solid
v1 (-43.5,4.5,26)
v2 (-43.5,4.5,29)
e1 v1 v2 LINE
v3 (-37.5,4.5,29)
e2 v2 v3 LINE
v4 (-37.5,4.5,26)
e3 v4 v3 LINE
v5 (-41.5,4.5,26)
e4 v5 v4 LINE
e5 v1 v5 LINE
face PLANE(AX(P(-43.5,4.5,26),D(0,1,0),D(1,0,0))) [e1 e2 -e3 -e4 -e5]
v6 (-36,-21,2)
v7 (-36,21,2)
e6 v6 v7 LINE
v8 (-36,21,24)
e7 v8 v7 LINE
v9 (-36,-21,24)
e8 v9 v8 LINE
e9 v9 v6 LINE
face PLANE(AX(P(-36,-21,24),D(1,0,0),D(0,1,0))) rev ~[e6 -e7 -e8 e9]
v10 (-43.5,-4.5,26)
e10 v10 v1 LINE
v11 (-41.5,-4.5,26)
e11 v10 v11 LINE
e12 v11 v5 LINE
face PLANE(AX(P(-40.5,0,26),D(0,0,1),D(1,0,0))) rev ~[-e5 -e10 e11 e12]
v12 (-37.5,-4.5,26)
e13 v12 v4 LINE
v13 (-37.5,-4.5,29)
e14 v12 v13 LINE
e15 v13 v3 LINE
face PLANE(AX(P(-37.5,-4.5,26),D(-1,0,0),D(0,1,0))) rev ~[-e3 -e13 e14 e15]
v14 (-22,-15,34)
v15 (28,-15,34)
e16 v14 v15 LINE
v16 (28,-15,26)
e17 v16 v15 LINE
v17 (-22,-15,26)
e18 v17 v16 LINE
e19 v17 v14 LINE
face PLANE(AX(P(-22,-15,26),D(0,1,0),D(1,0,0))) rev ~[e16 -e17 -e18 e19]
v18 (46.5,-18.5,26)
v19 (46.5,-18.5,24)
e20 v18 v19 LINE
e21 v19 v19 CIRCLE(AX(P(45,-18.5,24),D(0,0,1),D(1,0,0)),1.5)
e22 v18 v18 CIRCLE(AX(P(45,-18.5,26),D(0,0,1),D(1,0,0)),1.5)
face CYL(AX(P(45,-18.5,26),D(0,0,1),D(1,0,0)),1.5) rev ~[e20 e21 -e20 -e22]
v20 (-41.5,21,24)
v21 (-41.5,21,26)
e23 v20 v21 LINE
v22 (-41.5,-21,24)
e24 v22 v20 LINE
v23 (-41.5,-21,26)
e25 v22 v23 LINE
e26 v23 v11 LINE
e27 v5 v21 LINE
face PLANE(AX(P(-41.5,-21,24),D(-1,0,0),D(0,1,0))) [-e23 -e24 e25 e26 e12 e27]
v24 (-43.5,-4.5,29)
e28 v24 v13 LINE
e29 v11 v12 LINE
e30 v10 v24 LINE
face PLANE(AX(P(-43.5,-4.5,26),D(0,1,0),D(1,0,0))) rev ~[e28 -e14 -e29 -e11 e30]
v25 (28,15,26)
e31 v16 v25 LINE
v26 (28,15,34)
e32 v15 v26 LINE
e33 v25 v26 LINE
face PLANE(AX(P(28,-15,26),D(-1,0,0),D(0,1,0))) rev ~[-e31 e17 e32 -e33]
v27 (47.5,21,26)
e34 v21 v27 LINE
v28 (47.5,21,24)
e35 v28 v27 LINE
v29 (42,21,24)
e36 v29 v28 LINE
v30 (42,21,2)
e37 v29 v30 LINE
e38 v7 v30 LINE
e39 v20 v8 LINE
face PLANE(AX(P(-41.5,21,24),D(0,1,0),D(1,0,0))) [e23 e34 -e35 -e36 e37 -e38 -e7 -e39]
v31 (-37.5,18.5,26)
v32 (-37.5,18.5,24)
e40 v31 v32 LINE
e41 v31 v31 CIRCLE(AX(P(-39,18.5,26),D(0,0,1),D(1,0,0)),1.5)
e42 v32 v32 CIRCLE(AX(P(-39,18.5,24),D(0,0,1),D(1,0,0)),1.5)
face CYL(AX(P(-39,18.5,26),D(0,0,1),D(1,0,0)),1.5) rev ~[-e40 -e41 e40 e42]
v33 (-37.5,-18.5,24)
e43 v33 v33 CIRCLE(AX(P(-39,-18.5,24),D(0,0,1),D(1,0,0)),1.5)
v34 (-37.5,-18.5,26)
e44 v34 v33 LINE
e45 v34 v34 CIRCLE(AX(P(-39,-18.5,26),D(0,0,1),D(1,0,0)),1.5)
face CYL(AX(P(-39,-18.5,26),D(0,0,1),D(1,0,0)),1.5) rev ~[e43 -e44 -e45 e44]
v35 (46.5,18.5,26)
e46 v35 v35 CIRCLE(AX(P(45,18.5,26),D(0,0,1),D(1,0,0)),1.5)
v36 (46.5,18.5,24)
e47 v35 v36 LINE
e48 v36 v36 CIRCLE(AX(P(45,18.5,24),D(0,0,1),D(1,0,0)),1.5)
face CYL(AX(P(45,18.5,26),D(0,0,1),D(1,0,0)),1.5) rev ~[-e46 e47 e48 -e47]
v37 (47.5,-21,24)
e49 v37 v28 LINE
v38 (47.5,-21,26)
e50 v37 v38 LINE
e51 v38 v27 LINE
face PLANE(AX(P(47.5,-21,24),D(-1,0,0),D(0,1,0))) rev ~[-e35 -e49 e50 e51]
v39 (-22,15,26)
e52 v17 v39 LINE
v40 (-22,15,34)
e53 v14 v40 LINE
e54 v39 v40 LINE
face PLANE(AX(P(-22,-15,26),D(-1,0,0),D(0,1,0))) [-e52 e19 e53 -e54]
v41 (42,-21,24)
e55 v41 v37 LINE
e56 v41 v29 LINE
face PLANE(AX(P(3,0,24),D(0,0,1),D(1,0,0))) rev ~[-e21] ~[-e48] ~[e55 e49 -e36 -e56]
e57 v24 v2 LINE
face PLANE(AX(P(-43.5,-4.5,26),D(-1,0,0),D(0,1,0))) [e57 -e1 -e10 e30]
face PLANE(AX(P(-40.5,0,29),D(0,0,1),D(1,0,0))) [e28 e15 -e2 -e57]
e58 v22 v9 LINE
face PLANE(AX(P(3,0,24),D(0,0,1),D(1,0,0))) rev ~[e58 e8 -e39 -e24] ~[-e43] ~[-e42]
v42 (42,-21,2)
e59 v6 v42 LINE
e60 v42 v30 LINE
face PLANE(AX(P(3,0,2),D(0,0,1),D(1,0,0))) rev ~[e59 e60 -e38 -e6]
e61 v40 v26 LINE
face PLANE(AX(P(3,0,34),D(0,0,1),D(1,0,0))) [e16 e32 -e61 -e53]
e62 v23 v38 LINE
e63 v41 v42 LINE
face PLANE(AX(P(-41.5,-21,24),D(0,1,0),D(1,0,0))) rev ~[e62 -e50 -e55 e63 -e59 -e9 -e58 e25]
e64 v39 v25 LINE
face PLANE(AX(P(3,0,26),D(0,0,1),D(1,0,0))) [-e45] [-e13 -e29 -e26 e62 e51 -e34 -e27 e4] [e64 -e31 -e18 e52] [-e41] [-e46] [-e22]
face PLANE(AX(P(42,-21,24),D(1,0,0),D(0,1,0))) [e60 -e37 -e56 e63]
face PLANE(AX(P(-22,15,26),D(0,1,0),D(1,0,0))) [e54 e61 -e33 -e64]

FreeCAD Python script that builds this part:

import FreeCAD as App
import Part
import Sketcher

V = App.Vector
Q = App.Units.Quantity


def add_polygon(sketch, points):
    """Adds a closed chain of lines whose ends are joined by coincident constraints."""
    first, n = sketch.GeometryCount, len(points)
    for a, b in zip(points, points[1:] + points[:1]):
        sketch.addGeometry(Part.LineSegment(App.Vector(*a, 0), App.Vector(*b, 0)), False)
    for i in range(n):
        sketch.addConstraint(Sketcher.Constraint("Coincident", first + i, 2, first + (i + 1) % n, 1))

doc = App.newDocument("Part")
body = doc.addObject("PartDesign::Body", "Body")

sketch1 = doc.addObject("Sketcher::SketchObject", "Sketch")
body.addObject(sketch1)
sketch1.AttachmentSupport = (doc.XY_Plane, [""])
sketch1.MapMode = "FlatFace"
add_polygon(sketch1, [(-44, 21), (-44, -21), (44, -21), (44, 21)])
sketch1.addConstraint([
    Sketcher.Constraint("Vertical", 0),
    Sketcher.Constraint("Horizontal", 1),
    Sketcher.Constraint("Vertical", 2),
    Sketcher.Constraint("Horizontal", 3),
    Sketcher.Constraint("Symmetric", 0, 2, 2, 2, -1, 1),
    Sketcher.Constraint("DistanceX", 1, 1, 1, 2, Q("89 mm")),
    Sketcher.Constraint("DistanceY", 0, 2, 0, 1, Q("42 mm")),
])
pad1 = doc.addObject("PartDesign::Pad", "Pad")
body.addObject(pad1)
pad1.Profile = sketch1
pad1.Length = 2

sketch2 = doc.addObject("Sketcher::SketchObject", "Sketch001")
body.addObject(sketch2)
sketch2.AttachmentSupport = (doc.XY_Plane, [""])
sketch2.MapMode = "FlatFace"
sketch2.AttachmentOffset = App.Placement(V(0, 0, 2), App.Rotation())
add_polygon(sketch2, [(-25, 15), (-25, -15), (25, -15), (25, 15)])
sketch2.addConstraint([
    Sketcher.Constraint("Vertical", 0),
    Sketcher.Constraint("Horizontal", 1),
    Sketcher.Constraint("Vertical", 2),
    Sketcher.Constraint("Horizontal", 3),
    Sketcher.Constraint("Symmetric", 0, 2, 2, 2, -1, 1),
    Sketcher.Constraint("DistanceX", 1, 1, 1, 2, Q("50 mm")),
    Sketcher.Constraint("DistanceY", 0, 2, 0, 1, Q("30 mm")),
])
pad2 = doc.addObject("PartDesign::Pad", "Pad001")
body.addObject(pad2)
pad2.Profile = sketch2
pad2.Length = 8

sketch3 = doc.addObject("Sketcher::SketchObject", "Sketch002")
body.addObject(sketch3)
sketch3.AttachmentSupport = (doc.XY_Plane, [""])
sketch3.MapMode = "FlatFace"
sketch3.AttachmentOffset = App.Placement(V(0, 0, 2), App.Rotation())
sketch3.addGeometry([
    Part.Circle(V(-42, 18.5, 0), V(0, 0, 1), 1.5),
    Part.Circle(V(42, 18.5, 0), V(0, 0, 1), 1.5),
    Part.Circle(V(-42, -18.5, 0), V(0, 0, 1), 1.5),
    Part.Circle(V(42, -18.5, 0), V(0, 0, 1), 1.5),
], False)
sketch3.addConstraint([
    Sketcher.Constraint("Equal", 0, 1),
    Sketcher.Constraint("Equal", 1, 2),
    Sketcher.Constraint("Equal", 2, 3),
    Sketcher.Constraint("Symmetric", 1, 3, 2, 3, -1, 1),
    Sketcher.Constraint("Symmetric", 0, 3, 3, 3, -1, 1),
    Sketcher.Constraint("Symmetric", 0, 3, 1, 3, -2),
    Sketcher.Constraint("Diameter", 0, Q("3 mm")),
    Sketcher.Constraint("DistanceX", 0, 3, -1, 1, Q("42 mm")),
    Sketcher.Constraint("DistanceY", 2, 3, 0, 3, Q("37 mm")),
])
pocket1 = doc.addObject("PartDesign::Pocket", "Pocket")
body.addObject(pocket1)
pocket1.Profile = sketch3
pocket1.Length = 2

sketch4 = doc.addObject("Sketcher::SketchObject", "Sketch003")
body.addObject(sketch4)
sketch4.AttachmentSupport = (doc.XY_Plane, [""])
sketch4.MapMode = "FlatFace"
sketch4.AttachmentOffset = App.Placement(V(0, 0, 2), App.Rotation())
add_polygon(sketch4, [(-46, 4), (-46, -4), (-40, -4), (-40, 4)])
sketch4.addConstraint([
    Sketcher.Constraint("Vertical", 0),
    Sketcher.Constraint("Horizontal", 1),
    Sketcher.Constraint("Vertical", 2),
    Sketcher.Constraint("Horizontal", 3),
    Sketcher.Constraint("DistanceX", 1, 1, 1, 2, Q("6 mm")),
    Sketcher.Constraint("DistanceY", 0, 2, 0, 1, Q("9 mm")),
    Sketcher.Constraint("DistanceX", 0, 2, -1, 1, Q("46.5 mm")),
    Sketcher.Constraint("DistanceY", 0, 2, -1, 1, Q("4.5 mm")),
])
pad3 = doc.addObject("PartDesign::Pad", "Pad002")
body.addObject(pad3)
pad3.Profile = sketch4
pad3.Length = 3

sketch5 = doc.addObject("Sketcher::SketchObject", "Sketch004")
body.addObject(sketch5)
sketch5.AttachmentSupport = (doc.XY_Plane, [""])
sketch5.MapMode = "FlatFace"
add_polygon(sketch5, [(-39, 21), (-39, -21), (39, -21), (39, 21)])
sketch5.addConstraint([
    Sketcher.Constraint("Vertical", 0),
    Sketcher.Constraint("Horizontal", 1),
    Sketcher.Constraint("Vertical", 2),
    Sketcher.Constraint("Horizontal", 3),
    Sketcher.Constraint("Symmetric", 0, 2, 2, 2, -1, 1),
    Sketcher.Constraint("DistanceX", 1, 1, 1, 2, Q("78 mm")),
    Sketcher.Constraint("DistanceY", 0, 2, 0, 1, Q("42 mm")),
])
pad4 = doc.addObject("PartDesign::Pad", "Pad003")
body.addObject(pad4)
pad4.Profile = sketch5
pad4.Length = 22
pad4.Reversed = True
body2 = doc.addObject("PartDesign::Body", "Body001")
doc.recompute()

body.Placement = App.Placement(V(3, 0, 24), App.Rotation(V(0, 0, 1), 0))
boolean = doc.addObject("PartDesign::Boolean", "Boolean")
body2.addObject(boolean)
boolean.Type = "Fuse"
boolean.addObjects([body])

doc.recompute()
